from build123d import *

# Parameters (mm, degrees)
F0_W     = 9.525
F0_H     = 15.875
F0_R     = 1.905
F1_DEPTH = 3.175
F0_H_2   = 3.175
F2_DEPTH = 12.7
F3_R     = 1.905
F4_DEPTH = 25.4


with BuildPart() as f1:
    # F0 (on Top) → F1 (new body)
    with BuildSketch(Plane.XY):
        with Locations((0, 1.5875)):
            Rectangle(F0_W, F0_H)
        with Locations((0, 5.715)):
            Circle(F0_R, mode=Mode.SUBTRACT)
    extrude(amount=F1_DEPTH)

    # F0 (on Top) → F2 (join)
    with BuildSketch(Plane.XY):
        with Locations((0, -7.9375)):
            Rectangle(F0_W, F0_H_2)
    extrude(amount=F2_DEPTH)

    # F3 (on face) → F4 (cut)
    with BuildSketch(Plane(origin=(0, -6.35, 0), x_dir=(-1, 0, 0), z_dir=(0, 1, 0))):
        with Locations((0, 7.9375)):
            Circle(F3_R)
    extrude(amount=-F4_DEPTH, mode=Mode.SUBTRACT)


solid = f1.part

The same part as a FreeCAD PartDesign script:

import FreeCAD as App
import Part
import Sketcher

V = App.Vector
Q = App.Units.Quantity

doc = App.newDocument("Part")
params = doc.addObject("Spreadsheet::Sheet", "Params")
for row, (alias, value) in enumerate([
    ("sketch1_diameter", "0.15 in"),
    ("sketch1_width", "0.375 in"),
    ("sketch1_height", "0.625 in"),
    ("pad1_length", "0.125 in"),
    ("sketch2_width", "0.375 in"),
    ("sketch2_height", "0.125 in"),
    ("pad2_length", "0.5 in"),
    ("sketch3_diameter", "0.15 in"),
    ("pocket1_length", "1 in"),
], start=1):
    params.set(f"A{row}", alias)
    params.set(f"B{row}", "=" + value)
    params.setAlias(f"B{row}", alias)

body = doc.addObject("PartDesign::Body", "Body")

sketch1 = body.newObject("Sketcher::SketchObject", "Sketch")
sketch1.AttachmentSupport = (doc.getObject("XY_Plane"), [""])
sketch1.MapMode = "FlatFace"
sketch1.addGeometry([
    Part.LineSegment(V(-4.7625, 9.525, 0), V(-4.7625, -6.35, 0)),
    Part.LineSegment(V(-4.7625, -6.35, 0), V(4.7625, -6.35, 0)),
    Part.LineSegment(V(4.7625, -6.35, 0), V(4.7625, 9.525, 0)),
    Part.LineSegment(V(4.7625, 9.525, 0), V(-4.7625, 9.525, 0)),
    Part.Circle(V(0, 5.715, 0), V(0, 0, 1), 1.905),
], False)
sketch1.addConstraint([
    Sketcher.Constraint("Coincident", 0, 2, 1, 1),
    Sketcher.Constraint("Coincident", 1, 2, 2, 1),
    Sketcher.Constraint("Coincident", 2, 2, 3, 1),
    Sketcher.Constraint("Coincident", 3, 2, 0, 1),
    Sketcher.Constraint("Vertical", 0),
    Sketcher.Constraint("Horizontal", 1),
    Sketcher.Constraint("Vertical", 2),
    Sketcher.Constraint("Horizontal", 3),
    Sketcher.Constraint("PointOnObject", 4, 3, -2),
    Sketcher.Constraint("Diameter", 4, Q("0.15 in")),
    Sketcher.Constraint("DistanceX", 1, 1, 1, 2, Q("0.375 in")),
    Sketcher.Constraint("DistanceY", 0, 2, 0, 1, Q("0.625 in")),
    Sketcher.Constraint("DistanceY", 0, 2, -1, 1, Q("0.25 in")),
    Sketcher.Constraint("DistanceY", 4, 3, 2, 2, Q("0.15 in")),
    Sketcher.Constraint("DistanceX", 0, 2, -1, 1, Q("0.1875 in")),
])
sketch1.setExpression("Constraints[9]", "Params.sketch1_diameter")
sketch1.setExpression("Constraints[10]", "Params.sketch1_width")
sketch1.setExpression("Constraints[11]", "Params.sketch1_height")
pad1 = body.newObject("PartDesign::Pad", "Pad")
pad1.Profile = sketch1
pad1.setExpression("Length", "Params.pad1_length")

sketch2 = body.newObject("Sketcher::SketchObject", "Sketch001")
sketch2.AttachmentSupport = (doc.getObject("XY_Plane"), [""])
sketch2.MapMode = "FlatFace"
sketch2.addGeometry([
    Part.LineSegment(V(-4.7625, -6.35, 0), V(-4.7625, -9.525, 0)),
    Part.LineSegment(V(-4.7625, -9.525, 0), V(4.7625, -9.525, 0)),
    Part.LineSegment(V(4.7625, -9.525, 0), V(4.7625, -6.35, 0)),
    Part.LineSegment(V(4.7625, -6.35, 0), V(-4.7625, -6.35, 0)),
], False)
sketch2.addConstraint([
    Sketcher.Constraint("Coincident", 0, 2, 1, 1),
    Sketcher.Constraint("Coincident", 1, 2, 2, 1),
    Sketcher.Constraint("Coincident", 2, 2, 3, 1),
    Sketcher.Constraint("Coincident", 3, 2, 0, 1),
    Sketcher.Constraint("Vertical", 0),
    Sketcher.Constraint("Horizontal", 1),
    Sketcher.Constraint("Vertical", 2),
    Sketcher.Constraint("Horizontal", 3),
    Sketcher.Constraint("DistanceX", 1, 1, 1, 2, Q("0.375 in")),
    Sketcher.Constraint("DistanceY", 0, 2, 0, 1, Q("0.125 in")),
    Sketcher.Constraint("DistanceY", 2, 2, -1, 1, Q("0.25 in")),
    Sketcher.Constraint("DistanceX", 0, 2, -1, 1, Q("0.1875 in")),
])
sketch2.setExpression("Constraints[8]", "Params.sketch2_width")
sketch2.setExpression("Constraints[9]", "Params.sketch2_height")
pad2 = body.newObject("PartDesign::Pad", "Pad001")
pad2.Profile = sketch2
pad2.setExpression("Length", "Params.pad2_length")

sketch3 = body.newObject("Sketcher::SketchObject", "Sketch002")
sketch3.AttachmentSupport = (doc.getObject("XZ_Plane"), [""])
sketch3.MapMode = "FlatFace"
sketch3.AttachmentOffset = App.Placement(V(0, 0, 0.25 * 25.4), App.Rotation())
sketch3.addGeometry(Part.Circle(V(0, 7.9375, 0), V(0, 0, 1), 1.905), False)
sketch3.addConstraint([
    Sketcher.Constraint("PointOnObject", 0, 3, -2),
    Sketcher.Constraint("Diameter", 0, Q("0.15 in")),
    Sketcher.Constraint("DistanceY", -1, 1, 0, 3, Q("0.3125 in")),
])
sketch3.setExpression("Constraints[1]", "Params.sketch3_diameter")
pocket1 = body.newObject("PartDesign::Pocket", "Pocket")
pocket1.Profile = sketch3
pocket1.setExpression("Length", "Params.pocket1_length")
pocket1.Reversed = True

doc.recompute()
